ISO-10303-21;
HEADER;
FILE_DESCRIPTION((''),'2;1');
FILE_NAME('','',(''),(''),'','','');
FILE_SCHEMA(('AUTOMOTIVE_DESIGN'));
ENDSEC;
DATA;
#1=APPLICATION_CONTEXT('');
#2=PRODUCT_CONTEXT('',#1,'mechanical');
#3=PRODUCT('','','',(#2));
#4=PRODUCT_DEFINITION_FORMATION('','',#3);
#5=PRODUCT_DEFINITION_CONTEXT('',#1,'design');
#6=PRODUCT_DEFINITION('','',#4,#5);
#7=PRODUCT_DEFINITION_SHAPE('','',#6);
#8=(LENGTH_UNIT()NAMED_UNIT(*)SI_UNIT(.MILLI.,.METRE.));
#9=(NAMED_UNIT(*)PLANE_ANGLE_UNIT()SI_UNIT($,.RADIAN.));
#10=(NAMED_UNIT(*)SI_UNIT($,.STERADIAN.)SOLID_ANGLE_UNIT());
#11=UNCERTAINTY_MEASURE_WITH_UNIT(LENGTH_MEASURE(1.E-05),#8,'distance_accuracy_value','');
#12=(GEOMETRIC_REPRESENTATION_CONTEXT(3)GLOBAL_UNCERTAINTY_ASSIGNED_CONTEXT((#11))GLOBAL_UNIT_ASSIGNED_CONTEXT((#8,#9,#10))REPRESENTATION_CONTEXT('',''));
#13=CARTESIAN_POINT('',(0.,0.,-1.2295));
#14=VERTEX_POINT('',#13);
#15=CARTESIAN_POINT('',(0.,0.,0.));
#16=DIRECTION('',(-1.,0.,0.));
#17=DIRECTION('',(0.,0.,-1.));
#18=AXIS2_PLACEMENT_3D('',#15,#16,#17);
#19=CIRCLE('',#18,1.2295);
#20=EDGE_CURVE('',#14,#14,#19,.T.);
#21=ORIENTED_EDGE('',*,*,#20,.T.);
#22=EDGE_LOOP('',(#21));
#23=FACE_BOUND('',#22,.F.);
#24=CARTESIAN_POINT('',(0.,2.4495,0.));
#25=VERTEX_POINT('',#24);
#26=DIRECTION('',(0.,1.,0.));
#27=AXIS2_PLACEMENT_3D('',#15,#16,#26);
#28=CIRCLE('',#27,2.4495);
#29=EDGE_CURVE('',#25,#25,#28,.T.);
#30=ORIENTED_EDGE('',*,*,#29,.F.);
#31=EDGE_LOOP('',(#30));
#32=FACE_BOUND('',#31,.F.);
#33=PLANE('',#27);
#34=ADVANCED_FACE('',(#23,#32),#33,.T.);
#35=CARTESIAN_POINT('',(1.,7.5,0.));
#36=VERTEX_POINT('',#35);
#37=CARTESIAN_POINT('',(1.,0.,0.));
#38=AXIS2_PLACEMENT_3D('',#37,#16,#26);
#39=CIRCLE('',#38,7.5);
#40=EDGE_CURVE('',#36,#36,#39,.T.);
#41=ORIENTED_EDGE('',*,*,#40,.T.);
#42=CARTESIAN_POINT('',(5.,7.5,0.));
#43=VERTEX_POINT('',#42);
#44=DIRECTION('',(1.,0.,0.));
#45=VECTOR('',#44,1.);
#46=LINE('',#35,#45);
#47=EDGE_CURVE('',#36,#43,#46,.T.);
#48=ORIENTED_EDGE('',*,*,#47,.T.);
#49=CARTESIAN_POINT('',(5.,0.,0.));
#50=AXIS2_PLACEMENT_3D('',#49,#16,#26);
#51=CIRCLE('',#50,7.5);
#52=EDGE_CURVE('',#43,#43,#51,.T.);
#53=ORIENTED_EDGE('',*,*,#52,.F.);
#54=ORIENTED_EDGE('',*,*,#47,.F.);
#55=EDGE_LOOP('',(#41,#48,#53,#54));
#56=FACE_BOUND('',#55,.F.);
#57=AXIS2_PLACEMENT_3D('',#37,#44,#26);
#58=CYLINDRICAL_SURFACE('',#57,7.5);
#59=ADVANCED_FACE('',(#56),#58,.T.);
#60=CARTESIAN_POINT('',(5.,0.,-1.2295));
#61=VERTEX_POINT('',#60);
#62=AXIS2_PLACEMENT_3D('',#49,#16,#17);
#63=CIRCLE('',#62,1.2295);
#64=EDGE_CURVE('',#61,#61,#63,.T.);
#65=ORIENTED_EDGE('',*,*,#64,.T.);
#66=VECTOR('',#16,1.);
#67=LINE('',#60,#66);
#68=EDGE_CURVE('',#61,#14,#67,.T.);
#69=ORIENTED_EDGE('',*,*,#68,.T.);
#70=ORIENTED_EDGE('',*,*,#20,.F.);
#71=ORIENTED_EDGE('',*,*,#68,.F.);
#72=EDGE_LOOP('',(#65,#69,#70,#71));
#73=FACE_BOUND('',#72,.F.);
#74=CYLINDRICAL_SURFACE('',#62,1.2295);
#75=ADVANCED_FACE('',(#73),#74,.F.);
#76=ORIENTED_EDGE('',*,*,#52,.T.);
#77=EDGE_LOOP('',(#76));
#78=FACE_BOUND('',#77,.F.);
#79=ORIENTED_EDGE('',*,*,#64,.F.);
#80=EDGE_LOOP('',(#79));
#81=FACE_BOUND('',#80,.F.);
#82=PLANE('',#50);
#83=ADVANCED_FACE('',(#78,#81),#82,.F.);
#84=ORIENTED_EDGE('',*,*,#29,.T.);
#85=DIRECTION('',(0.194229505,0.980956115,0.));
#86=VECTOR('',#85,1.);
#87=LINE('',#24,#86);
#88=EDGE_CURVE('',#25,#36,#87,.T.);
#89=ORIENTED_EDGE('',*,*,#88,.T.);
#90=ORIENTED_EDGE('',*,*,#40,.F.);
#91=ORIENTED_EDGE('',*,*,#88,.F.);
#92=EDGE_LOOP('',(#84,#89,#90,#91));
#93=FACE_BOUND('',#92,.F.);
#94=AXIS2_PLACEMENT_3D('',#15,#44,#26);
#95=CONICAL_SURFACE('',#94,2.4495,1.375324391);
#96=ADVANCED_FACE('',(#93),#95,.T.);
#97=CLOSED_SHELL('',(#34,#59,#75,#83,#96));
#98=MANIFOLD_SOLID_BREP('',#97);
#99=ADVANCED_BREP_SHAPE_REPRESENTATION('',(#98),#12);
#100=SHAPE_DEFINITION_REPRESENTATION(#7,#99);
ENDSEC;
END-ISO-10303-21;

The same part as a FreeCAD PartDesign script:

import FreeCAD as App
import Part
import Sketcher
from FreeCAD import Vector
Q = App.Units.Quantity


def add_polygon(sketch, points):
    """Adds a closed chain of lines whose ends are joined by coincident constraints."""
    first, n = sketch.GeometryCount, len(points)
    for a, b in zip(points, points[1:] + points[:1]):
        sketch.addGeometry(Part.LineSegment(App.Vector(*a, 0), App.Vector(*b, 0)), False)
    for i in range(n):
        sketch.addConstraint(Sketcher.Constraint("Coincident", first + i, 2, first + (i + 1) % n, 1))

doc = App.newDocument("Part")
body = doc.addObject("PartDesign::Body", "Body")

sketch1 = body.newObject("Sketcher::SketchObject", "Sketch")
sketch1.AttachmentSupport = (doc.getObject("XY_Plane"), [""])
sketch1.MapMode = "FlatFace"
add_polygon(sketch1, [(0, 2.4495), (0, 0), (5, 0), (5, 7.5), (1, 7.5)])
sketch1.addConstraint([
    Sketcher.Constraint("Vertical", 0),
    Sketcher.Constraint("Horizontal", 1),
    Sketcher.Constraint("Vertical", 2),
    Sketcher.Constraint("Horizontal", 3),
    Sketcher.Constraint("Coincident", 0, 2, -1, 1),
    Sketcher.Constraint("DistanceX", 1, 1, 1, 2, Q("5 mm")),
    Sketcher.Constraint("DistanceX", 3, 2, 3, 1, Q("4 mm")),
    Sketcher.Constraint("DistanceY", 2, 1, 2, 2, Q("7.5 mm")),
    Sketcher.Constraint("Angle", 4, Q("-101.1997 deg")),
])
revolution = body.newObject("PartDesign::Revolution", "Revolution")
revolution.Profile = sketch1
revolution.ReferenceAxis = (sketch1, ["H_Axis"])
revolution.Angle = 360

sketch2 = body.newObject("Sketcher::SketchObject", "Sketch001")
sketch2.AttachmentSupport = (doc.getObject("YZ_Plane"), [""])
sketch2.MapMode = "FlatFace"
sketch2.AttachmentOffset = App.Placement(Vector(0, 0, 5), App.Rotation())
sketch2.addGeometry(Part.Circle(Vector(0, 0, 0), Vector(0, 0, 1), 1.2295), False)
sketch2.addConstraint([
    Sketcher.Constraint("Coincident", 0, 3, -1, 1),
    Sketcher.Constraint("Diameter", 0, Q("2.459 mm")),
])
doc.recompute()
hole = body.newObject("PartDesign::Hole", "Hole")
hole.Profile = sketch2
hole.ThreadType = "None"
hole.Diameter = 2.459
hole.DepthType = "Dimension"
hole.Depth = 5
hole.DrillPoint = "Flat"

doc.recompute()
